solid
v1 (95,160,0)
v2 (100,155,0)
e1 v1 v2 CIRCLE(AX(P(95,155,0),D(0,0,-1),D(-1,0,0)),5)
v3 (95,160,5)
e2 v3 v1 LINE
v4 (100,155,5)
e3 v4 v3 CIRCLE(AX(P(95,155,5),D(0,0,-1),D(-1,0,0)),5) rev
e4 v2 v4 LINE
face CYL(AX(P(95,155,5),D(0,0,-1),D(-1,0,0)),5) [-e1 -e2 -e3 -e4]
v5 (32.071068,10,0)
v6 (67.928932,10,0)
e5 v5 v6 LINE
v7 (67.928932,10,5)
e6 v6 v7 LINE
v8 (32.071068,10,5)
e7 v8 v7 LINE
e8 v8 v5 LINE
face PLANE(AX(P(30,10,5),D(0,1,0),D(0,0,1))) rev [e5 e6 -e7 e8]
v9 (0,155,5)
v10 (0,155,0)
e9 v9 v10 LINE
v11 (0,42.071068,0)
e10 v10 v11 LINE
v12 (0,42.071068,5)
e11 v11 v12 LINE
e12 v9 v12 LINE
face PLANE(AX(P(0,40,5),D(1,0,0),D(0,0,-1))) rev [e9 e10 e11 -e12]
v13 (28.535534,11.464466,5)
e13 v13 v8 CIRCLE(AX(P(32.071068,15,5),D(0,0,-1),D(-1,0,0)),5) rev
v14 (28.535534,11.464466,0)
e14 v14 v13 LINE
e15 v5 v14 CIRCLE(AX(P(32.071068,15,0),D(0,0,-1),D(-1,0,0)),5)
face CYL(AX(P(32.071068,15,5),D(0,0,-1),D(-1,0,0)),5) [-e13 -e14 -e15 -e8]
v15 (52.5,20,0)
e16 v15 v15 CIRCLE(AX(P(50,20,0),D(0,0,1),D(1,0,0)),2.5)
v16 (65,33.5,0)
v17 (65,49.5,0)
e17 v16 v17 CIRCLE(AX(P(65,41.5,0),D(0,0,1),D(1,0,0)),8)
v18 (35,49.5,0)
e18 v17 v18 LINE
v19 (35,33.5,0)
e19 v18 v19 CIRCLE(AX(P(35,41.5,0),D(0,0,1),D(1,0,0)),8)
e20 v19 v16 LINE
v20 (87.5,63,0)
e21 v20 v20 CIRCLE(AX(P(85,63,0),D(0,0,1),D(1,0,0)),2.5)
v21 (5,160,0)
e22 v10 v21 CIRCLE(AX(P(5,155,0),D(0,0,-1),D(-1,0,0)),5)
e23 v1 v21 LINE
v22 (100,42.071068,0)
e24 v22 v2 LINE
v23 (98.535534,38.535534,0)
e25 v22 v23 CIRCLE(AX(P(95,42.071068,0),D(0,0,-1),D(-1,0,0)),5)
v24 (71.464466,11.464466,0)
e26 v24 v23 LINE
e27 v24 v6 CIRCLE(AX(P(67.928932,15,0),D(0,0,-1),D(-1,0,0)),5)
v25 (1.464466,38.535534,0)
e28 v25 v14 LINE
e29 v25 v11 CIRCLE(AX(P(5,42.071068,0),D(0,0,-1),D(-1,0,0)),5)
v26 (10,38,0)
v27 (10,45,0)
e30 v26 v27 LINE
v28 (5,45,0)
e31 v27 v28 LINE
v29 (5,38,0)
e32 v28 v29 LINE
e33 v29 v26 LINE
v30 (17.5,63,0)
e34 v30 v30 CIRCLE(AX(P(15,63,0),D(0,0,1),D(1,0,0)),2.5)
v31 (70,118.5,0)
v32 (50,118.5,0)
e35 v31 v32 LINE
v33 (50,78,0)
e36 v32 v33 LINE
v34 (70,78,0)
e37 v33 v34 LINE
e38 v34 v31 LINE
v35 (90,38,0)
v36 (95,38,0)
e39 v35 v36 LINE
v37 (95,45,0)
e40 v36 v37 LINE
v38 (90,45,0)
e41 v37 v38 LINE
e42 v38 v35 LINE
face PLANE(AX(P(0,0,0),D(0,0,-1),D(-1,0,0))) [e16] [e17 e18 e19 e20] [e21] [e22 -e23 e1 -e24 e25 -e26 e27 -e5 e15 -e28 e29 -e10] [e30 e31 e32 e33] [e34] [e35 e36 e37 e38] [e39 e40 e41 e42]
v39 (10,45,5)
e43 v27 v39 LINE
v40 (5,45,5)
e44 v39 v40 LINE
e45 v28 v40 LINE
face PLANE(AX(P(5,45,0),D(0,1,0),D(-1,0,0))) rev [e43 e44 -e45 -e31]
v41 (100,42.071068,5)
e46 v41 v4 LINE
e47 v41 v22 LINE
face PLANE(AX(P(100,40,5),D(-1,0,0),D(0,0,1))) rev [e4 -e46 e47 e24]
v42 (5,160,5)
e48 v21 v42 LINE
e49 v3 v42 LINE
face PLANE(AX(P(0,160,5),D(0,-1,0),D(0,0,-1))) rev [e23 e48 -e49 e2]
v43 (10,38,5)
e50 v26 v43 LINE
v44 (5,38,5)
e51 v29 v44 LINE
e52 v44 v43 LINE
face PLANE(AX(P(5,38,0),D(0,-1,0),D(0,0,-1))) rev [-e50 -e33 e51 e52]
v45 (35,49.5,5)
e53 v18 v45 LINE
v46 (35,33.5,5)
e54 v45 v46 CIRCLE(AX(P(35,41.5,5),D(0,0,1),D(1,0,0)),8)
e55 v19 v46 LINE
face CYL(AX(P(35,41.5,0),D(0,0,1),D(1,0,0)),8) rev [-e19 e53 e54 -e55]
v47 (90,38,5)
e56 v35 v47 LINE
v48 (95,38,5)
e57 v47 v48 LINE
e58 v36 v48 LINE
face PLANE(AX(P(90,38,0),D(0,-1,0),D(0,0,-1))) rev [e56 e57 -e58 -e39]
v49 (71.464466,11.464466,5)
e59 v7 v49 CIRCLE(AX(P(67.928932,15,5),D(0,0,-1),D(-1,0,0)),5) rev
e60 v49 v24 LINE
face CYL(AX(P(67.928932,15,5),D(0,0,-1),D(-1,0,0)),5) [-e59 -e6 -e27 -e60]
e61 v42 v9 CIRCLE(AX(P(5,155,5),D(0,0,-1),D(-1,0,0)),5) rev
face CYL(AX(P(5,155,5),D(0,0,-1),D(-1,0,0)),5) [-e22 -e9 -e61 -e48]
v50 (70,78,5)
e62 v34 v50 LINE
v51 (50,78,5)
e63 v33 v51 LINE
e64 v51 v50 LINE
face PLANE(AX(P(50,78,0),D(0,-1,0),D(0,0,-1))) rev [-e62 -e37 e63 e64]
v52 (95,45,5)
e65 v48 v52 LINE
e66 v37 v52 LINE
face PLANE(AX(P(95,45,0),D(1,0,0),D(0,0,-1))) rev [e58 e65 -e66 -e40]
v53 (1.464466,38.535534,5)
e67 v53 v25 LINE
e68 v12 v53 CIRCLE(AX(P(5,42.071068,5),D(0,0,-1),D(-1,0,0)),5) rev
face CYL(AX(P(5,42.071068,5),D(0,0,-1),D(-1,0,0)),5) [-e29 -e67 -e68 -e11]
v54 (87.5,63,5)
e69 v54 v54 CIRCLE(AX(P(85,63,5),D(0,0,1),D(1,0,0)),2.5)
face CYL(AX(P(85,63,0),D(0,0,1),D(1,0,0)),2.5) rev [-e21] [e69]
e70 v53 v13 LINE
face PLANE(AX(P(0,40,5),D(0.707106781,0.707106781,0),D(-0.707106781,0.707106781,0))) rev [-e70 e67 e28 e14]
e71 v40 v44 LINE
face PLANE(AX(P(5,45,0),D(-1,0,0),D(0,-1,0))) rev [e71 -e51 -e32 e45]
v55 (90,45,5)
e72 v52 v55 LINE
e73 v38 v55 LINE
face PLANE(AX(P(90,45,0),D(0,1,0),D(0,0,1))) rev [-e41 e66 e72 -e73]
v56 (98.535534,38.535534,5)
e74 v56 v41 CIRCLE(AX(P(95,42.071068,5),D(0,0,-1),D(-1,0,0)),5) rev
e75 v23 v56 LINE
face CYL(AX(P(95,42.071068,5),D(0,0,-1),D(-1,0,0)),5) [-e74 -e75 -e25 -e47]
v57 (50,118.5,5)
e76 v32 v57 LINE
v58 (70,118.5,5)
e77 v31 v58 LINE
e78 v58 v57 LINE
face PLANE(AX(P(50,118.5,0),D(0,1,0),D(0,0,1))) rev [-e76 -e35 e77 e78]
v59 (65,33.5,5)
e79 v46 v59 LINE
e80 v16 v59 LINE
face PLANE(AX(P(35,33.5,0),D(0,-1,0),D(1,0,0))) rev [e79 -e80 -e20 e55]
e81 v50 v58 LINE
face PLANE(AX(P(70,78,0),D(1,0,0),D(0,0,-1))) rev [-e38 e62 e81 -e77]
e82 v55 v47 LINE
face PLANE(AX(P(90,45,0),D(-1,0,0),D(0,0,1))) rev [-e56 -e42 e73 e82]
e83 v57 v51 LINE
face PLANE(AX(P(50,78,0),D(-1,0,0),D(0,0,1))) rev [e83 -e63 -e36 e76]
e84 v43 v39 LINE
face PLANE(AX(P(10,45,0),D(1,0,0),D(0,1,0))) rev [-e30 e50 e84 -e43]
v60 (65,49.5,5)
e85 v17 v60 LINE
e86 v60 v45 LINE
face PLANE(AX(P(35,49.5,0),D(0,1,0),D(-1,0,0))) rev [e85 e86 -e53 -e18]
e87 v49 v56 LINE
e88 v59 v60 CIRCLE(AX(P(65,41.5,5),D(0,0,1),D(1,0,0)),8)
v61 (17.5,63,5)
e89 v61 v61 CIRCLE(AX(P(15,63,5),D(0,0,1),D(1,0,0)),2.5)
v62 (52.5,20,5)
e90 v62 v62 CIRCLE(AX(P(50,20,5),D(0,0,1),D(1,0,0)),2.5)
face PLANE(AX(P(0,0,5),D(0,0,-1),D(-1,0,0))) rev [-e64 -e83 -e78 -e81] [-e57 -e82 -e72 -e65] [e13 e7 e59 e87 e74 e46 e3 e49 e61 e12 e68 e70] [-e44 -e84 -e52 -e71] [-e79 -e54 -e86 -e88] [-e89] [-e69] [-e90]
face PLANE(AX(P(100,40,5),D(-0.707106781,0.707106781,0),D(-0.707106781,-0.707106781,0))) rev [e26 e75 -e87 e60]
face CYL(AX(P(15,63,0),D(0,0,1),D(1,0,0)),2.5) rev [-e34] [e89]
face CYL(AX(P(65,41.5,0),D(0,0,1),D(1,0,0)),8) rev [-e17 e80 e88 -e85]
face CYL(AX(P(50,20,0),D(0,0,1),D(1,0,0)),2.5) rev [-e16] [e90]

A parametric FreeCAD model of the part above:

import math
import FreeCAD as App
import Part
import Sketcher


def edges_at(feature, points):
    """Names of the edges that pass closest to the given points."""
    edges = feature.Shape.Edges
    near = lambda p: min(range(len(edges)), key=lambda i: edges[i].distToShape(Part.Vertex(*p))[0])
    return sorted({f"Edge{near(p) + 1}" for p in points})

doc = App.newDocument("Part")
body = doc.addObject("PartDesign::Body", "Body")

sketch1 = doc.addObject("Sketcher::SketchObject", "Sketch")
body.addObject(sketch1)
sketch1.AttachmentSupport = (doc.XY_Plane, [""])
sketch1.MapMode = "FlatFace"
sketch1.addGeometry(Part.LineSegment(App.Vector(0, 40, 0), App.Vector(30, 10, 0)), False)
sketch1.addGeometry(Part.LineSegment(App.Vector(30, 10, 0), App.Vector(70, 10, 0)), False)
sketch1.addGeometry(Part.LineSegment(App.Vector(70, 10, 0), App.Vector(100, 40, 0)), False)
sketch1.addGeometry(Part.LineSegment(App.Vector(100, 40, 0), App.Vector(100, 160, 0)), False)
sketch1.addGeometry(Part.LineSegment(App.Vector(100, 160, 0), App.Vector(0, 160, 0)), False)
sketch1.addGeometry(Part.LineSegment(App.Vector(0, 160, 0), App.Vector(0, 40, 0)), False)
sketch1.addConstraint(Sketcher.Constraint("Coincident", 0, 2, 1, 1))
sketch1.addConstraint(Sketcher.Constraint("Coincident", 1, 2, 2, 1))
sketch1.addConstraint(Sketcher.Constraint("Coincident", 2, 2, 3, 1))
sketch1.addConstraint(Sketcher.Constraint("Coincident", 3, 2, 4, 1))
sketch1.addConstraint(Sketcher.Constraint("Coincident", 4, 2, 5, 1))
sketch1.addConstraint(Sketcher.Constraint("Coincident", 5, 2, 0, 1))
sketch1.addConstraint(Sketcher.Constraint("Horizontal", 1))
sketch1.addConstraint(Sketcher.Constraint("Vertical", 3))
sketch1.addConstraint(Sketcher.Constraint("Horizontal", 4))
sketch1.addConstraint(Sketcher.Constraint("Vertical", 5))
sketch1.addConstraint(Sketcher.Constraint("PointOnObject", 4, 2, -2))
sketch1.addConstraint(Sketcher.Constraint("Perpendicular", 0, 2))
sketch1.addConstraint(Sketcher.Constraint("Horizontal", 2, 2, 5, 2))
sketch1.addConstraint(Sketcher.Constraint("Equal", 0, 2))
sketch1.addConstraint(Sketcher.Constraint("DistanceX", 1, 1, 1, 2, 40.0))
sketch1.addConstraint(Sketcher.Constraint("DistanceX", 4, 2, 4, 1, 100.0))
sketch1.addConstraint(Sketcher.Constraint("DistanceY", 3, 1, 3, 2, 120.0))
sketch1.addConstraint(Sketcher.Constraint("DistanceY", -1, 1, 0, 2, 10.0))
pad1 = doc.addObject("PartDesign::Pad", "Pad")
body.addObject(pad1)
pad1.Profile = sketch1
pad1.Length = 5

sketch2 = doc.addObject("Sketcher::SketchObject", "Sketch001")
body.addObject(sketch2)
sketch2.AttachmentSupport = (doc.XY_Plane, [""])
sketch2.MapMode = "FlatFace"
sketch2.AttachmentOffset = App.Placement(App.Vector(0, 0, 5), App.Rotation())
sketch2.addGeometry(Part.Circle(App.Vector(50, 20, 0), App.Vector(0, 0, 1), 2.5), False)
sketch2.addGeometry(Part.Circle(App.Vector(85, 63, 0), App.Vector(0, 0, 1), 2.5), False)
sketch2.addGeometry(Part.Circle(App.Vector(15, 63, 0), App.Vector(0, 0, 1), 2.5), False)
sketch2.addGeometry(Part.LineSegment(App.Vector(50, 118.5, 0), App.Vector(50, 78, 0)), False)
sketch2.addGeometry(Part.LineSegment(App.Vector(50, 78, 0), App.Vector(70, 78, 0)), False)
sketch2.addGeometry(Part.LineSegment(App.Vector(70, 78, 0), App.Vector(70, 118.5, 0)), False)
sketch2.addGeometry(Part.LineSegment(App.Vector(70, 118.5, 0), App.Vector(50, 118.5, 0)), False)
sketch2.addGeometry(Part.LineSegment(App.Vector(65, 49.5, 0), App.Vector(35, 49.5, 0)), False)
sketch2.addGeometry(Part.ArcOfCircle(Part.Circle(App.Vector(35, 41.5, 0), App.Vector(0, 0, 1), 8), math.radians(90), math.radians(270)), False)
sketch2.addGeometry(Part.LineSegment(App.Vector(35, 33.5, 0), App.Vector(65, 33.5, 0)), False)
sketch2.addGeometry(Part.ArcOfCircle(Part.Circle(App.Vector(65, 41.5, 0), App.Vector(0, 0, 1), 8), math.radians(-90), math.radians(90)), False)
sketch2.addConstraint(Sketcher.Constraint("Coincident", 3, 2, 4, 1))
sketch2.addConstraint(Sketcher.Constraint("Coincident", 4, 2, 5, 1))
sketch2.addConstraint(Sketcher.Constraint("Coincident", 5, 2, 6, 1))
sketch2.addConstraint(Sketcher.Constraint("Coincident", 6, 2, 3, 1))
sketch2.addConstraint(Sketcher.Constraint("Tangent", 7, 2, 8, 1))
sketch2.addConstraint(Sketcher.Constraint("Tangent", 8, 2, 9, 1))
sketch2.addConstraint(Sketcher.Constraint("Tangent", 9, 2, 10, 1))
sketch2.addConstraint(Sketcher.Constraint("Tangent", 10, 2, 7, 1))
sketch2.addConstraint(Sketcher.Constraint("Vertical", 3))
sketch2.addConstraint(Sketcher.Constraint("Horizontal", 4))
sketch2.addConstraint(Sketcher.Constraint("Vertical", 5))
sketch2.addConstraint(Sketcher.Constraint("Horizontal", 6))
sketch2.addConstraint(Sketcher.Constraint("Horizontal", 7))
sketch2.addConstraint(Sketcher.Constraint("Horizontal", 9))
sketch2.addConstraint(Sketcher.Constraint("Equal", 0, 1))
sketch2.addConstraint(Sketcher.Constraint("Equal", 1, 2))
sketch2.addConstraint(Sketcher.Constraint("Horizontal", 1, 3, 2, 3))
sketch2.addConstraint(Sketcher.Constraint("Vertical", 0, 3, 3, 2))
sketch2.addConstraint(Sketcher.Constraint("Diameter", 0, 5.0))
sketch2.addConstraint(Sketcher.Constraint("Radius", 8, 8.0))
sketch2.addConstraint(Sketcher.Constraint("DistanceX", 4, 1, 4, 2, 20.0))
sketch2.addConstraint(Sketcher.Constraint("DistanceX", 7, 2, 7, 1, 30.0))
sketch2.addConstraint(Sketcher.Constraint("DistanceY", 3, 2, 3, 1, 40.5))
sketch2.addConstraint(Sketcher.Constraint("DistanceX", -1, 1, 0, 3, 50.0))
sketch2.addConstraint(Sketcher.Constraint("DistanceY", -1, 1, 0, 3, 20.0))
sketch2.addConstraint(Sketcher.Constraint("DistanceX", -1, 1, 1, 3, 85.0))
sketch2.addConstraint(Sketcher.Constraint("DistanceY", -1, 1, 1, 3, 63.0))
sketch2.addConstraint(Sketcher.Constraint("DistanceX", -1, 1, 2, 3, 15.0))
sketch2.addConstraint(Sketcher.Constraint("DistanceX", -1, 1, 8, 3, 35.0))
sketch2.addConstraint(Sketcher.Constraint("DistanceY", -1, 1, 3, 2, 78.0))
sketch2.addConstraint(Sketcher.Constraint("DistanceY", 10, 3, 5, 2, 77.0))
pocket1 = doc.addObject("PartDesign::Pocket", "Pocket")
body.addObject(pocket1)
pocket1.Profile = sketch2
pocket1.Type = "ThroughAll"
doc.recompute()

fillet = doc.addObject("PartDesign::Fillet", "Fillet")
body.addObject(fillet)
fillet.Base = (pocket1, edges_at(pocket1, [(0, 40, 2.5)]))
fillet.Radius = 5
doc.recompute()

fillet2 = doc.addObject("PartDesign::Fillet", "Fillet001")
body.addObject(fillet2)
fillet2.Base = (fillet, edges_at(fillet, [(100, 40, 2.5)]))
fillet2.Radius = 5
doc.recompute()

fillet3 = doc.addObject("PartDesign::Fillet", "Fillet002")
body.addObject(fillet3)
fillet3.Base = (fillet2, edges_at(fillet2, [(70, 10, 2.5)]))
fillet3.Radius = 5
doc.recompute()

fillet4 = doc.addObject("PartDesign::Fillet", "Fillet003")
body.addObject(fillet4)
fillet4.Base = (fillet3, edges_at(fillet3, [(30, 10, 2.5)]))
fillet4.Radius = 5
doc.recompute()

fillet5 = doc.addObject("PartDesign::Fillet", "Fillet004")
body.addObject(fillet5)
fillet5.Base = (fillet4, edges_at(fillet4, [(100, 160, 2.5)]))
fillet5.Radius = 5
doc.recompute()

fillet6 = doc.addObject("PartDesign::Fillet", "Fillet005")
body.addObject(fillet6)
fillet6.Base = (fillet5, edges_at(fillet5, [(0, 160, 2.5)]))
fillet6.Radius = 5

sketch3 = doc.addObject("Sketcher::SketchObject", "Sketch002")
body.addObject(sketch3)
sketch3.AttachmentSupport = (doc.XY_Plane, [""])
sketch3.MapMode = "FlatFace"
sketch3.AttachmentOffset = App.Placement(App.Vector(0, 0, 5), App.Rotation())
sketch3.addGeometry(Part.LineSegment(App.Vector(5, 45, 0), App.Vector(5, 38, 0)), False)
sketch3.addGeometry(Part.LineSegment(App.Vector(5, 38, 0), App.Vector(10, 38, 0)), False)
sketch3.addGeometry(Part.LineSegment(App.Vector(10, 38, 0), App.Vector(10, 45, 0)), False)
sketch3.addGeometry(Part.LineSegment(App.Vector(10, 45, 0), App.Vector(5, 45, 0)), False)
sketch3.addGeometry(Part.LineSegment(App.Vector(90, 45, 0), App.Vector(90, 38, 0)), False)
sketch3.addGeometry(Part.LineSegment(App.Vector(90, 38, 0), App.Vector(95, 38, 0)), False)
sketch3.addGeometry(Part.LineSegment(App.Vector(95, 38, 0), App.Vector(95, 45, 0)), False)
sketch3.addGeometry(Part.LineSegment(App.Vector(95, 45, 0), App.Vector(90, 45, 0)), False)
sketch3.addConstraint(Sketcher.Constraint("Coincident", 0, 2, 1, 1))
sketch3.addConstraint(Sketcher.Constraint("Coincident", 1, 2, 2, 1))
sketch3.addConstraint(Sketcher.Constraint("Coincident", 2, 2, 3, 1))
sketch3.addConstraint(Sketcher.Constraint("Coincident", 3, 2, 0, 1))
sketch3.addConstraint(Sketcher.Constraint("Coincident", 4, 2, 5, 1))
sketch3.addConstraint(Sketcher.Constraint("Coincident", 5, 2, 6, 1))
sketch3.addConstraint(Sketcher.Constraint("Coincident", 6, 2, 7, 1))
sketch3.addConstraint(Sketcher.Constraint("Coincident", 7, 2, 4, 1))
sketch3.addConstraint(Sketcher.Constraint("Vertical", 0))
sketch3.addConstraint(Sketcher.Constraint("Horizontal", 1))
sketch3.addConstraint(Sketcher.Constraint("Vertical", 2))
sketch3.addConstraint(Sketcher.Constraint("Horizontal", 3))
sketch3.addConstraint(Sketcher.Constraint("Vertical", 4))
sketch3.addConstraint(Sketcher.Constraint("Horizontal", 5))
sketch3.addConstraint(Sketcher.Constraint("Vertical", 6))
sketch3.addConstraint(Sketcher.Constraint("Horizontal", 7))
sketch3.addConstraint(Sketcher.Constraint("Horizontal", 1, 2, 4, 2))
sketch3.addConstraint(Sketcher.Constraint("Horizontal", 3, 2, 6, 2))
sketch3.addConstraint(Sketcher.Constraint("Equal", 3, 5))
sketch3.addConstraint(Sketcher.Constraint("DistanceX", 1, 1, 1, 2, 5.0))
sketch3.addConstraint(Sketcher.Constraint("DistanceY", 0, 2, 0, 1, 7.0))
sketch3.addConstraint(Sketcher.Constraint("DistanceX", -1, 1, 0, 2, 5.0))
sketch3.addConstraint(Sketcher.Constraint("DistanceY", -1, 1, 0, 2, 38.0))
sketch3.addConstraint(Sketcher.Constraint("DistanceX", -1, 1, 4, 2, 90.0))
pocket2 = doc.addObject("PartDesign::Pocket", "Pocket001")
body.addObject(pocket2)
pocket2.Profile = sketch3
pocket2.Type = "ThroughAll"

doc.recompute()
